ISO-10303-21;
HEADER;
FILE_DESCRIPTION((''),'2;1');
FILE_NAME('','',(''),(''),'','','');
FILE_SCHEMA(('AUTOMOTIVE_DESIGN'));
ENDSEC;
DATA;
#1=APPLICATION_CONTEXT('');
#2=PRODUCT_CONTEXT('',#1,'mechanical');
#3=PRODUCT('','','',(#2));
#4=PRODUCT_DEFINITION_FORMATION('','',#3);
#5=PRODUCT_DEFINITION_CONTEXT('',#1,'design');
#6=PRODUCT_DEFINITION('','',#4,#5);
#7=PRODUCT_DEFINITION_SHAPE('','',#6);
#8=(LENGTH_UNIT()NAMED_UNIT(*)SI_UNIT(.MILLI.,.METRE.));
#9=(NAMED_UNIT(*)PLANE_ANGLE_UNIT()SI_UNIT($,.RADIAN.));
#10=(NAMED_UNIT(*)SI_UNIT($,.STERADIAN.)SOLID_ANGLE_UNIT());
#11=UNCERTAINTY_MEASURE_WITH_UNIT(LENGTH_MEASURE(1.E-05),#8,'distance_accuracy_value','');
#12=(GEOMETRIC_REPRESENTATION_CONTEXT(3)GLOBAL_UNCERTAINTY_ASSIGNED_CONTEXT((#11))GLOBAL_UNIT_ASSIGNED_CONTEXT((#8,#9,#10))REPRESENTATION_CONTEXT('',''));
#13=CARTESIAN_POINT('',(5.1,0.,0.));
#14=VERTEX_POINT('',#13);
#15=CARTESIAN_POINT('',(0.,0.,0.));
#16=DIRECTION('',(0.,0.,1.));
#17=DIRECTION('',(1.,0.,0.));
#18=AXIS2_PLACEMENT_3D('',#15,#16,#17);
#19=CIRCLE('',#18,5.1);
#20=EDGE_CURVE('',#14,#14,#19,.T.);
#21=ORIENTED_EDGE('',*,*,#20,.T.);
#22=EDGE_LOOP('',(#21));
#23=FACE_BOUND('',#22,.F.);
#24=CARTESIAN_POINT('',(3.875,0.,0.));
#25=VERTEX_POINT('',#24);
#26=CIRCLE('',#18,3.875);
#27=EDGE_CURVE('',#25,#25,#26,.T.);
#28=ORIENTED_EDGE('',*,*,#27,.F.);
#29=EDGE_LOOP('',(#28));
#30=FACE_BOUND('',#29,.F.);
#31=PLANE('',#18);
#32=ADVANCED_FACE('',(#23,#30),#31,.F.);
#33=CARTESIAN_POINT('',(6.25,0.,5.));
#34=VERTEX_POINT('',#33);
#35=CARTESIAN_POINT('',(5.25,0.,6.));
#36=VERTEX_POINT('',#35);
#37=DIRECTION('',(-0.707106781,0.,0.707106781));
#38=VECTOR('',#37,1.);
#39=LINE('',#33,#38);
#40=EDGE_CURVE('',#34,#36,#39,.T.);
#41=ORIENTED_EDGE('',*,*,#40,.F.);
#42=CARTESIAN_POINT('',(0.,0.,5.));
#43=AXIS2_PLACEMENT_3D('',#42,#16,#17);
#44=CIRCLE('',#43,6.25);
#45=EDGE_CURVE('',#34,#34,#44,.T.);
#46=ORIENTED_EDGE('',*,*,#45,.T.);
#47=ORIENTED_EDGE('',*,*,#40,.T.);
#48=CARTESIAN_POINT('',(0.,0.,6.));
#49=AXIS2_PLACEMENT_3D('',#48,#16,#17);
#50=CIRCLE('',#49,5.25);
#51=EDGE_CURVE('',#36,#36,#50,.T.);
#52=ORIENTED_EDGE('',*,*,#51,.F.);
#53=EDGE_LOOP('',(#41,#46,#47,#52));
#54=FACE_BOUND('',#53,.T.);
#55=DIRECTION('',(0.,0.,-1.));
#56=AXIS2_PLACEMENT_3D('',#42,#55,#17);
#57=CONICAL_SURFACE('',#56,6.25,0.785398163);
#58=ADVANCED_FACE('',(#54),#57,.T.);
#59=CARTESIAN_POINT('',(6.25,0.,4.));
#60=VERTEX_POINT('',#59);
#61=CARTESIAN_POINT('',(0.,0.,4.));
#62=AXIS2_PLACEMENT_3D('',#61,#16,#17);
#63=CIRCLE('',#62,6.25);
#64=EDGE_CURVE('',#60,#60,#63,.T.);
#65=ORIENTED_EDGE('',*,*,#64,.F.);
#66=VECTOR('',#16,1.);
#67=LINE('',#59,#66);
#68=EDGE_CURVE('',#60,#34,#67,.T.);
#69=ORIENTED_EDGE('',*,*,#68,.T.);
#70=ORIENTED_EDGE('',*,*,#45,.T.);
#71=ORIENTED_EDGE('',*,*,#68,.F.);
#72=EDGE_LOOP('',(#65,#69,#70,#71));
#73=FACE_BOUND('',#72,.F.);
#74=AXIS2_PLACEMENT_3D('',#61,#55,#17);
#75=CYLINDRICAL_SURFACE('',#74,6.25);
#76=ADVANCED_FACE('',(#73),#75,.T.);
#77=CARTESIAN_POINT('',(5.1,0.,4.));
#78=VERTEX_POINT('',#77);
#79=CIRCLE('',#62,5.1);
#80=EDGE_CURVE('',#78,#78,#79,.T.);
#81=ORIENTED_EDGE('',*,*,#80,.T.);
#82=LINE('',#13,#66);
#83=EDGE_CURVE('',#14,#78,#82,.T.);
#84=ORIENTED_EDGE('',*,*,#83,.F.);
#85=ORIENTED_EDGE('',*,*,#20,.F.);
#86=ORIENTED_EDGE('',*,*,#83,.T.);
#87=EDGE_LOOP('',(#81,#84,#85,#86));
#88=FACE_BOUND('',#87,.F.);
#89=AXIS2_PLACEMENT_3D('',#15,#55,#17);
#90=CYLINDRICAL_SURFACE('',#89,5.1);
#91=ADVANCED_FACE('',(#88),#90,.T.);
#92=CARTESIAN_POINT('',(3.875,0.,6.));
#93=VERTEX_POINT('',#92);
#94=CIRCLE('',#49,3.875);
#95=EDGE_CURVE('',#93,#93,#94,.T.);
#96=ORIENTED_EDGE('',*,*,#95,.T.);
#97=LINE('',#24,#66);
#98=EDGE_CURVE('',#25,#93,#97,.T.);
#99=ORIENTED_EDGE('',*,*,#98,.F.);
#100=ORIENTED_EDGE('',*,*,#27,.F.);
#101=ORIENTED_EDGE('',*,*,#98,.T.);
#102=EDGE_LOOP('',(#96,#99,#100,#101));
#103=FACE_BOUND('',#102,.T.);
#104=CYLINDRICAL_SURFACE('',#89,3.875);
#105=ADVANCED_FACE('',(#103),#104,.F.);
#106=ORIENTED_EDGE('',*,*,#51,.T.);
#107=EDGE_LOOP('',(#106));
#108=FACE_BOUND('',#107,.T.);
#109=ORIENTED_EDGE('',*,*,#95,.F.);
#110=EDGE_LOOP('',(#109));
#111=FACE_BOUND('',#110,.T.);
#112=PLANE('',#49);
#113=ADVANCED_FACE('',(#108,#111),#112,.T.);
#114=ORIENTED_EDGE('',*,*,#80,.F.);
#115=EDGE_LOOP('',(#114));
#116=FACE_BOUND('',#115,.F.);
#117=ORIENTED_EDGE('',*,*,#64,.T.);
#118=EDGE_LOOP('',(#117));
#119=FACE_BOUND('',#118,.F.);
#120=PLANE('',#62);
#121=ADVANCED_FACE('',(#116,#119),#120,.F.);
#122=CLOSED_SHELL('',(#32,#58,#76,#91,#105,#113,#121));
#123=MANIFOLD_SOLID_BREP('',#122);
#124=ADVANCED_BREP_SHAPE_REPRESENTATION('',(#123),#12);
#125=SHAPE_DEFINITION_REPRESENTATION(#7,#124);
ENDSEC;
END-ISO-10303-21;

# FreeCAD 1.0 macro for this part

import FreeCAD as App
import Part
import Sketcher
Q = App.Units.Quantity


def edges_at(feature, points):
    """Names of the edges that pass closest to the given points."""
    edges = feature.Shape.Edges
    near = lambda p: min(range(len(edges)), key=lambda i: edges[i].distToShape(Part.Vertex(*p))[0])
    return sorted({f"Edge{near(p) + 1}" for p in points})

doc = App.newDocument("Part")
body = doc.addObject("PartDesign::Body", "Body")

# Sketch on XY plane
sketch1 = body.newObject("Sketcher::SketchObject", "Sketch")
sketch1.AttachmentSupport = (doc.getObject("XY_Plane"), [""])
sketch1.MapMode = "FlatFace"
sketch1.addGeometry([
    Part.Circle(App.Vector(0, 0, 0), App.Vector(0, 0, 1), 5.1),
    Part.Circle(App.Vector(0, 0, 0), App.Vector(0, 0, 1), 3.9),
], False)
sketch1.addConstraint([
    Sketcher.Constraint("Coincident", 0, 3, -1, 1),
    Sketcher.Constraint("Coincident", 1, 3, -1, 1),
    Sketcher.Constraint("Diameter", 0, Q("10.2 mm")),
    Sketcher.Constraint("Diameter", 1, Q("7.75 mm")),
])
pad1 = body.newObject("PartDesign::Pad", "Pad")
pad1.Profile = sketch1
pad1.Length = 6

# Sketch on XY plane
sketch2 = body.newObject("Sketcher::SketchObject", "Sketch001")
sketch2.AttachmentSupport = (doc.getObject("XY_Plane"), [""])
sketch2.MapMode = "FlatFace"
sketch2.AttachmentOffset = App.Placement(App.Vector(0, 0, 4), App.Rotation())
sketch2.addGeometry([
    Part.Circle(App.Vector(0, 0, 0), App.Vector(0, 0, 1), 6),
    Part.Circle(App.Vector(0, 0, 0), App.Vector(0, 0, 1), 5),
], False)
sketch2.addConstraint([
    Sketcher.Constraint("Coincident", 0, 3, -1, 1),
    Sketcher.Constraint("Coincident", 1, 3, -1, 1),
    Sketcher.Constraint("Diameter", 0, Q("12.5 mm")),
    Sketcher.Constraint("Diameter", 1, Q("10.2 mm")),
])
pad2 = body.newObject("PartDesign::Pad", "Pad001")
pad2.Profile = sketch2
pad2.Length = 2
doc.recompute()

chamfer = body.newObject("PartDesign::Chamfer", "Chamfer")
chamfer.Base = (pad2, edges_at(pad2, [(-6.25, 0, 6)]))
chamfer.Size = 1

doc.recompute()
